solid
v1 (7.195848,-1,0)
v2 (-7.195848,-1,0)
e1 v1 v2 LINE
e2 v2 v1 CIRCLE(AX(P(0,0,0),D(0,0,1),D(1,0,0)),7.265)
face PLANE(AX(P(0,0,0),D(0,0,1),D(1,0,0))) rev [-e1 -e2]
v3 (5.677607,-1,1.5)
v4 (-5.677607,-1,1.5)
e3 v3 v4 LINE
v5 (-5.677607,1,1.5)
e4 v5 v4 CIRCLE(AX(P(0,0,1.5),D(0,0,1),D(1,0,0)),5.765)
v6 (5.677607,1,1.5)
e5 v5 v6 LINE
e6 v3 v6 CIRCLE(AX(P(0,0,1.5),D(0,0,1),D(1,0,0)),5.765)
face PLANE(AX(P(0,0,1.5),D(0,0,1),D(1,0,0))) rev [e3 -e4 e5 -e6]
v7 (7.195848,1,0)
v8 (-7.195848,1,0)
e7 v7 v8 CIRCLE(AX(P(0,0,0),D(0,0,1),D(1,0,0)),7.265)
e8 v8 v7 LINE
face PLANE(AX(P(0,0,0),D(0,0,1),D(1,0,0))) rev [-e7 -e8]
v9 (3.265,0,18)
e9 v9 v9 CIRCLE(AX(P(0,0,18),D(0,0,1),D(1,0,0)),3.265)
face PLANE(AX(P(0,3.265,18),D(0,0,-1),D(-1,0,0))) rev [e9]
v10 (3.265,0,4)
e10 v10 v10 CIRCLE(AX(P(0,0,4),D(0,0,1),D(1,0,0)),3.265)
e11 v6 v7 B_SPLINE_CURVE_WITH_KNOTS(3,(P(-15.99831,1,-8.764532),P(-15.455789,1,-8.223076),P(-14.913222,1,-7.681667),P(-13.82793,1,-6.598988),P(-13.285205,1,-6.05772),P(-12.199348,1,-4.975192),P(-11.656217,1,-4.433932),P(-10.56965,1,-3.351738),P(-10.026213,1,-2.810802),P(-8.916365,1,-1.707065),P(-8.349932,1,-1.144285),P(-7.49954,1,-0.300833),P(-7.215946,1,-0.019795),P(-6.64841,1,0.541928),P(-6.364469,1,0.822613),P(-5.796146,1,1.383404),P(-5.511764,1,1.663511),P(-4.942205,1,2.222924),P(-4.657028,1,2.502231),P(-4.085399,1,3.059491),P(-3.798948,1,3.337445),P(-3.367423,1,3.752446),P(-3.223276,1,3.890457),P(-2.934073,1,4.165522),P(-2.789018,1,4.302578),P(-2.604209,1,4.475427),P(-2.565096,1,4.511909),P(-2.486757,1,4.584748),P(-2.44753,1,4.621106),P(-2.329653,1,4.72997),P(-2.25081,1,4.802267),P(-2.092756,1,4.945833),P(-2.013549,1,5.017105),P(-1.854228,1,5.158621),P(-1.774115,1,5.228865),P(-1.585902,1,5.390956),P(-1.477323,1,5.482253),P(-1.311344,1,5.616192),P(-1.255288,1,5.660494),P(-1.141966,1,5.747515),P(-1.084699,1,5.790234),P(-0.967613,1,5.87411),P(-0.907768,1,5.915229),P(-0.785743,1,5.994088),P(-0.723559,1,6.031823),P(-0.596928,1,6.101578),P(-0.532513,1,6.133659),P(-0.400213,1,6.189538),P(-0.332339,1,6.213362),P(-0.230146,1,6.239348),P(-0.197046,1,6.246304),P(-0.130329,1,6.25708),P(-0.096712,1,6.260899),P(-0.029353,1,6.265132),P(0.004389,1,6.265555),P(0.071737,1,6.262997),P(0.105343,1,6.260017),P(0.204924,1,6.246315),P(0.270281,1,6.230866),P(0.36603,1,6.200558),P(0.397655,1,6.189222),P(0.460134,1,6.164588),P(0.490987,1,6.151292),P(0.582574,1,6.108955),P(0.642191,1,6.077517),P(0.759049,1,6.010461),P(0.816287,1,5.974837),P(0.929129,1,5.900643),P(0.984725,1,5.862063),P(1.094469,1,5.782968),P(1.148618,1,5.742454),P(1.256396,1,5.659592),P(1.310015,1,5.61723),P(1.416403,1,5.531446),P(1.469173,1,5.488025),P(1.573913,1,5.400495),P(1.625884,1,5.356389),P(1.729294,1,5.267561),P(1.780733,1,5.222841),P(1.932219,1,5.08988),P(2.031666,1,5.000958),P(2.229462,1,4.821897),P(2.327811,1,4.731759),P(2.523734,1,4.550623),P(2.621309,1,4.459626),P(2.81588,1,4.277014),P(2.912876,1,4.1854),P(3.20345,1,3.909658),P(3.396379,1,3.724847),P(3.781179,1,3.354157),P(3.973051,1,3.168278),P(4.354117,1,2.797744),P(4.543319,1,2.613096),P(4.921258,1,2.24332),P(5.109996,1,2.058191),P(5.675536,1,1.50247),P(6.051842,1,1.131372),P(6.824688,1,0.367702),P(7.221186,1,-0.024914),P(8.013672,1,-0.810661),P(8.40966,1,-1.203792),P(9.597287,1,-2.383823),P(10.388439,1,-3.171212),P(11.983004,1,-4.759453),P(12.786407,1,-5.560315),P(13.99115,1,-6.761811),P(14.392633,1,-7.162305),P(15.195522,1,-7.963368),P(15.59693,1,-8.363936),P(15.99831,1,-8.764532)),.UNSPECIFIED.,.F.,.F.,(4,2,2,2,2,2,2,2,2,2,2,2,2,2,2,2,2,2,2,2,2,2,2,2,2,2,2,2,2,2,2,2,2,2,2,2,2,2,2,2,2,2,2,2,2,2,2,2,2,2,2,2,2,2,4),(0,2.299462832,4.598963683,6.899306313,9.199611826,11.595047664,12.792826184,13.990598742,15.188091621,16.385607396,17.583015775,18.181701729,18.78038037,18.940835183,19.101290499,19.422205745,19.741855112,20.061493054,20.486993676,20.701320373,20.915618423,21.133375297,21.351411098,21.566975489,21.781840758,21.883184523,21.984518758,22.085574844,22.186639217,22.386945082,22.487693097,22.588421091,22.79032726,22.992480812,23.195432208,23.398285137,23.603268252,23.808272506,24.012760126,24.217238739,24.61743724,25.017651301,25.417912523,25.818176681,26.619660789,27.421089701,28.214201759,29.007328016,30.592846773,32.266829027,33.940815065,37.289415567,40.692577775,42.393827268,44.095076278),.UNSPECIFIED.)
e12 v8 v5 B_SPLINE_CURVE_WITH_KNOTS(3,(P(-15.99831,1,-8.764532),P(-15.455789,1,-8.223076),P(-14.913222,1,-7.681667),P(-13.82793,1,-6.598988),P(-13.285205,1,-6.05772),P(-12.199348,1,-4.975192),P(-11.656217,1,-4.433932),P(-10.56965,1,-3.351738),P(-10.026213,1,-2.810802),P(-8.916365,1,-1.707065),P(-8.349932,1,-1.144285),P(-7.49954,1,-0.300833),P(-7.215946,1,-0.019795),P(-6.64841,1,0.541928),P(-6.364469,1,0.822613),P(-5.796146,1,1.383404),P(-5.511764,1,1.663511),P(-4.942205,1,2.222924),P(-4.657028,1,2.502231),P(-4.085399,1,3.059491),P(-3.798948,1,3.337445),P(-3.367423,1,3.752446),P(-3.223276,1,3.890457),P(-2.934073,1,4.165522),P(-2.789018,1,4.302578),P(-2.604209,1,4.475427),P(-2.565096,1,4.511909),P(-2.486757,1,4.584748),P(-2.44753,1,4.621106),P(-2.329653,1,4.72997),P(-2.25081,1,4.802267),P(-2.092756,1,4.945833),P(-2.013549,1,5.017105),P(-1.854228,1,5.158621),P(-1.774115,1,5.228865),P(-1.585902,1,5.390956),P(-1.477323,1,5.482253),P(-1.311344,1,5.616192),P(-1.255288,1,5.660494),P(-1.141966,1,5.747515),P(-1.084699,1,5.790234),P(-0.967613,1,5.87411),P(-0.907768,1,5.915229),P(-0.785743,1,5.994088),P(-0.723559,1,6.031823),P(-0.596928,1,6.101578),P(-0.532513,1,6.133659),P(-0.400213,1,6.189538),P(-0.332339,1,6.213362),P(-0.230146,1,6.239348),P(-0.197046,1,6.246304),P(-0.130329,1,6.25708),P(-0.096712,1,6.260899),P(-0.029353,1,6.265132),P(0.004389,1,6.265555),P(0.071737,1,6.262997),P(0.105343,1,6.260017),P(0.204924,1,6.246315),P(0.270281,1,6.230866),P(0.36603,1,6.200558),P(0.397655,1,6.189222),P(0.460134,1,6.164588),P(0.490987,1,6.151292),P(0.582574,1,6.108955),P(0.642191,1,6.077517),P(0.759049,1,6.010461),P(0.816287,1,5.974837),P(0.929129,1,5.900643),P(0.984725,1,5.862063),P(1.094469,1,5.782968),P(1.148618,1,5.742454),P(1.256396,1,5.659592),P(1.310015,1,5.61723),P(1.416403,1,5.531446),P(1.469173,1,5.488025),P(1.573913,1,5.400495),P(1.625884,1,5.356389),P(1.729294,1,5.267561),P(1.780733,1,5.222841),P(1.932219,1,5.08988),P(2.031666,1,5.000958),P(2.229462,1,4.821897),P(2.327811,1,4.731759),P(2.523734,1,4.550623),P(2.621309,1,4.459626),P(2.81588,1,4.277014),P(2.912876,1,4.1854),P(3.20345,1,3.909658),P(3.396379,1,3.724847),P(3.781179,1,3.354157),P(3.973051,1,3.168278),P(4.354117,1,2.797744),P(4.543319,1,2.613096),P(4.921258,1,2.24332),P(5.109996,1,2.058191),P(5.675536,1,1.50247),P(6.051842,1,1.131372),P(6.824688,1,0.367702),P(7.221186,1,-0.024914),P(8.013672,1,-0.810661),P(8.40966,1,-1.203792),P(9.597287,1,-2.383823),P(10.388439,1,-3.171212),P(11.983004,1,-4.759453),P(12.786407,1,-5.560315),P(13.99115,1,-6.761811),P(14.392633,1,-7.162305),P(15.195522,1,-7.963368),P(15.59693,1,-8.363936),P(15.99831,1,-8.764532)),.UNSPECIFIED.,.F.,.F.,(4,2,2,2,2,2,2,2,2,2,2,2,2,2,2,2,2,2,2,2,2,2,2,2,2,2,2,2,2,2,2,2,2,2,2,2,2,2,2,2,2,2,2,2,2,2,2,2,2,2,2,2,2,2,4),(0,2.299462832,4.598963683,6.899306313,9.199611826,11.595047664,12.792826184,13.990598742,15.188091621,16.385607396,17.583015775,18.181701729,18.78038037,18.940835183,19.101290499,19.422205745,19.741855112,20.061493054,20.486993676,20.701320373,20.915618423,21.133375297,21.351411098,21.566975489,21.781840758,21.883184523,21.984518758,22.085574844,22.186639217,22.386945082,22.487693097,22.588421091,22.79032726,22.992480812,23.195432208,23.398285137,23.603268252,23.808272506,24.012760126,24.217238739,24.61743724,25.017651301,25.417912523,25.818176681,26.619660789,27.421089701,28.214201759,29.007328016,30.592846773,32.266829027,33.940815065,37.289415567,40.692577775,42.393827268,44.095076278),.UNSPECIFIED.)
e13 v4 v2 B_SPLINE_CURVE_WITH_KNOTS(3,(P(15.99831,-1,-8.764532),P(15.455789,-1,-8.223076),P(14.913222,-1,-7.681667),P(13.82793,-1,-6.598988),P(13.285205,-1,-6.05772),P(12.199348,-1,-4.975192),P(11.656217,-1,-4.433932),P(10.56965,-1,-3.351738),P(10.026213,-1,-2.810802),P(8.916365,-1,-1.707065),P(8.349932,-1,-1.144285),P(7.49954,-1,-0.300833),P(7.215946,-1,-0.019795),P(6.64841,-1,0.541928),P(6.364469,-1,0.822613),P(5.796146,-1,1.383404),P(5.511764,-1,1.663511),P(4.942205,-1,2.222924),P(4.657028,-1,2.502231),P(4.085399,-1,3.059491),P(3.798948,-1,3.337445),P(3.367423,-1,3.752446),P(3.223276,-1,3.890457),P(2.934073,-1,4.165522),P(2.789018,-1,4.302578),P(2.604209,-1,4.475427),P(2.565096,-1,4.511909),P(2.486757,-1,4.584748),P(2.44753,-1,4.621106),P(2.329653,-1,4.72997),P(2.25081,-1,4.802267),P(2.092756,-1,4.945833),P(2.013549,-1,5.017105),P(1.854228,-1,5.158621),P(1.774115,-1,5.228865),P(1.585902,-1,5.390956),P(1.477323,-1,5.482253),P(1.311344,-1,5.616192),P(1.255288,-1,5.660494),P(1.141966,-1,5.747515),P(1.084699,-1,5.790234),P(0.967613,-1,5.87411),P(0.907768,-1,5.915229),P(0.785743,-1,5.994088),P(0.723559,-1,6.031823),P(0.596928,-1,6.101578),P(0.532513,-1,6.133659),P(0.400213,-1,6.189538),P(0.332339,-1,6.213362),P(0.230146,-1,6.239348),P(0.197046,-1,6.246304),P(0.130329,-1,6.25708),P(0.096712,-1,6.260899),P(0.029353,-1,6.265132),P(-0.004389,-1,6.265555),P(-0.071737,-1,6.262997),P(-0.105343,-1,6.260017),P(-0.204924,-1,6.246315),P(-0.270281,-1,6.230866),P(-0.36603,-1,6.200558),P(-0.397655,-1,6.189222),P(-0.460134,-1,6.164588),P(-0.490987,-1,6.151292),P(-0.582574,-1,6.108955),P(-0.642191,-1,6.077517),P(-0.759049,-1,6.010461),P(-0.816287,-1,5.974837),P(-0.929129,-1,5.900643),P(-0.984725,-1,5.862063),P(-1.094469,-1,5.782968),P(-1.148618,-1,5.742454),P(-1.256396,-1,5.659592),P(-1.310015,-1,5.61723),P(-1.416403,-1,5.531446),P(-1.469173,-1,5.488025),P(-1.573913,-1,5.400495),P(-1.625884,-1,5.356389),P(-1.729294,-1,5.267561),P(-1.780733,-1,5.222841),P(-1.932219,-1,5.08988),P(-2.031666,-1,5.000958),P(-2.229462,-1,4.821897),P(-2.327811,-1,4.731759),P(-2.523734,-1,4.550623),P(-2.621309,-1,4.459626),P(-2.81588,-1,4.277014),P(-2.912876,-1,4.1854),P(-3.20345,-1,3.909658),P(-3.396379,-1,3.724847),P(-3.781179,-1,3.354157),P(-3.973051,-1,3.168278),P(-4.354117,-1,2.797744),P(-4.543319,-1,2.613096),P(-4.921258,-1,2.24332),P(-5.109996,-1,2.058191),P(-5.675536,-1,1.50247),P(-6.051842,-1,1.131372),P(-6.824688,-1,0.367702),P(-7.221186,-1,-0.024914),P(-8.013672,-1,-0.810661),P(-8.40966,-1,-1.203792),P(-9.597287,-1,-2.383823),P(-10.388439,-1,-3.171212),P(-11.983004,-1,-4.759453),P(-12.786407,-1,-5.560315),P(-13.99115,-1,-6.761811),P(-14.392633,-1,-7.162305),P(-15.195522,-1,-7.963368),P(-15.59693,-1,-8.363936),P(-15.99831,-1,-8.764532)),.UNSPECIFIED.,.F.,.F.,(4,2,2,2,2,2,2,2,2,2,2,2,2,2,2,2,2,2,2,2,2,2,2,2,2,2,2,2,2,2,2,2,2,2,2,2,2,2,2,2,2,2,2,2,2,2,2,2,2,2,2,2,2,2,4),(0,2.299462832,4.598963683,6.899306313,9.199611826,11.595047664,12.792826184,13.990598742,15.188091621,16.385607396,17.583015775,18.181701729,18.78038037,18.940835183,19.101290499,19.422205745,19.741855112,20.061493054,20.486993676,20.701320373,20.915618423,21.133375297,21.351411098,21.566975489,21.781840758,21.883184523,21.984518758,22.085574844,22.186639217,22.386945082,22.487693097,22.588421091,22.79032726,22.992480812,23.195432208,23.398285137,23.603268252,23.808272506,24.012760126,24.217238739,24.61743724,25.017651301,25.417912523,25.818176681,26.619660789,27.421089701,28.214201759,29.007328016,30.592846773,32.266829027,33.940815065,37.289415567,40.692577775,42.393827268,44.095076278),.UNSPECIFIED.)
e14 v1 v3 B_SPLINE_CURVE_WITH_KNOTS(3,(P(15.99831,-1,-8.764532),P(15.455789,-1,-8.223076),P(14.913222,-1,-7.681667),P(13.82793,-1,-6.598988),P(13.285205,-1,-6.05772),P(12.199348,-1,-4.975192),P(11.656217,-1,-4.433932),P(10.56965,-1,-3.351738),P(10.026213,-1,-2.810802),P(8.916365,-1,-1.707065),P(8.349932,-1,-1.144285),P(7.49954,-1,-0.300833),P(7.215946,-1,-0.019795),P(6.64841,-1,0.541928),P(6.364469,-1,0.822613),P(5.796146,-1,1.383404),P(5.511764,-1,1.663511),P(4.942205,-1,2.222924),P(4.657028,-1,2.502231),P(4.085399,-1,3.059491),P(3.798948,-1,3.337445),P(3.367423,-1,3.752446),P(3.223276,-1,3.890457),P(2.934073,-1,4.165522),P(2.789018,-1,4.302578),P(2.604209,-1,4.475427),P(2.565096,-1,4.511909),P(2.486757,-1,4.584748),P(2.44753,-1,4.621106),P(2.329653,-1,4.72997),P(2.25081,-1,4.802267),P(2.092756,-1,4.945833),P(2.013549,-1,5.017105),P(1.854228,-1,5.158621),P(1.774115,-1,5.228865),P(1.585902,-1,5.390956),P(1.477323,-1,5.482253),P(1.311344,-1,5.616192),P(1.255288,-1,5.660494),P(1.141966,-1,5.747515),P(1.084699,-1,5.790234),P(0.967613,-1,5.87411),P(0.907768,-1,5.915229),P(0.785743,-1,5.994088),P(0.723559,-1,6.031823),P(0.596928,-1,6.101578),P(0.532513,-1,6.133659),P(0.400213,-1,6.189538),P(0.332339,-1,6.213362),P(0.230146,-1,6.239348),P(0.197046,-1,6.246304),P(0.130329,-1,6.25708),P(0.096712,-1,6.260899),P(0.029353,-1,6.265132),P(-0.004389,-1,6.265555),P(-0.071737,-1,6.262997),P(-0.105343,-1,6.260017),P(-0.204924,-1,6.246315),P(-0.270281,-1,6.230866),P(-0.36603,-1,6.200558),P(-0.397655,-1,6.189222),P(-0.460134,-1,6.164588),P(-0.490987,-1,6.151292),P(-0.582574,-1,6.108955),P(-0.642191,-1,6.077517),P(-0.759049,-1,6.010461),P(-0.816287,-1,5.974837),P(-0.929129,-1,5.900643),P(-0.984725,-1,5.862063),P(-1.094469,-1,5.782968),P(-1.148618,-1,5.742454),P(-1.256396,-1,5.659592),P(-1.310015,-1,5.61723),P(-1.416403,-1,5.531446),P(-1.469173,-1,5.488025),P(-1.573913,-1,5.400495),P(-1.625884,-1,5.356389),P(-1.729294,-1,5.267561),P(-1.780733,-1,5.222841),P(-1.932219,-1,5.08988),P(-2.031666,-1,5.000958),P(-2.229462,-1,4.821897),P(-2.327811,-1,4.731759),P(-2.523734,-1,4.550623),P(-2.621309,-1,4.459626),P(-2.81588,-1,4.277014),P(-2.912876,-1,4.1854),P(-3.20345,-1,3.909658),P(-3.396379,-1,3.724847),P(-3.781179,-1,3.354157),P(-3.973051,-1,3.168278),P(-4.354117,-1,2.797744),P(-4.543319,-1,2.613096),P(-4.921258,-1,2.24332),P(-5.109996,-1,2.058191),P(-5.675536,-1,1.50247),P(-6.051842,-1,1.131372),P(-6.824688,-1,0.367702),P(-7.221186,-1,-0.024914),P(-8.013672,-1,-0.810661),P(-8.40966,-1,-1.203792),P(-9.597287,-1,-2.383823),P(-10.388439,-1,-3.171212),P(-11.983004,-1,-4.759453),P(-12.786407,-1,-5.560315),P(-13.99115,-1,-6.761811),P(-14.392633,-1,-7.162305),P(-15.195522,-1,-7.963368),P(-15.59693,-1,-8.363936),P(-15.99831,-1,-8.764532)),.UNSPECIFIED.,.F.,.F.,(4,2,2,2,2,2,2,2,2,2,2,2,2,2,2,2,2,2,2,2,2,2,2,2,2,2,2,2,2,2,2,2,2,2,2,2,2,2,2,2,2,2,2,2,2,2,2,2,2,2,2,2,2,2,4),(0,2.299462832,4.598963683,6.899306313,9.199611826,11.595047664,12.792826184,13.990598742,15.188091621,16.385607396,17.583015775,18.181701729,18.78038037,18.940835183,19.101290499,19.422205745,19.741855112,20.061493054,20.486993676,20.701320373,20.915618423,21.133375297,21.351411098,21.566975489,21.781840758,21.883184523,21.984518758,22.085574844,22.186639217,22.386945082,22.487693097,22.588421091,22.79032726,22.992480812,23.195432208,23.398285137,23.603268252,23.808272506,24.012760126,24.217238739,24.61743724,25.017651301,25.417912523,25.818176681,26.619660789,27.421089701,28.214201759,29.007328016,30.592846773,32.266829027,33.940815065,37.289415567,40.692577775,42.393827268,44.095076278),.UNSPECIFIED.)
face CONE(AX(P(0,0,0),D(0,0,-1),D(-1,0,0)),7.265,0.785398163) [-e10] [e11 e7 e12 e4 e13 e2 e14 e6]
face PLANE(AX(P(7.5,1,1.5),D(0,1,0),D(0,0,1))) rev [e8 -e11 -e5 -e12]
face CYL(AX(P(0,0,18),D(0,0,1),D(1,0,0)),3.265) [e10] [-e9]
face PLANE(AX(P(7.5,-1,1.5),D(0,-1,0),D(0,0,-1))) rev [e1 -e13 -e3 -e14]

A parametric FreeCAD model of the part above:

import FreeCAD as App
import Part
import Sketcher
Q = App.Units.Quantity

doc = App.newDocument("Part")
body = doc.addObject("PartDesign::Body", "Body")

sketch1 = body.newObject("Sketcher::SketchObject", "Sketch")
sketch1.AttachmentSupport = (doc.getObject("YZ_Plane"), [""])
sketch1.MapMode = "FlatFace"
sketch1.addGeometry([
    Part.LineSegment(App.Vector(0, 0, 0), App.Vector(7.265, 0, 0)),
    Part.LineSegment(App.Vector(7.265, 0, 0), App.Vector(3.265, 4, 0)),
    Part.LineSegment(App.Vector(3.265, 4, 0), App.Vector(3.265, 18, 0)),
    Part.LineSegment(App.Vector(3.265, 18, 0), App.Vector(0, 18, 0)),
    Part.LineSegment(App.Vector(0, 18, 0), App.Vector(0, 0, 0)),
], False)
sketch1.addConstraint([
    Sketcher.Constraint("Coincident", 0, 2, 1, 1),
    Sketcher.Constraint("Coincident", 1, 2, 2, 1),
    Sketcher.Constraint("Coincident", 2, 2, 3, 1),
    Sketcher.Constraint("Coincident", 3, 2, 4, 1),
    Sketcher.Constraint("Coincident", 4, 2, 0, 1),
    Sketcher.Constraint("Horizontal", 0),
    Sketcher.Constraint("Vertical", 2),
    Sketcher.Constraint("Horizontal", 3),
    Sketcher.Constraint("Vertical", 4),
    Sketcher.Constraint("Coincident", 4, 2, -1, 1),
    Sketcher.Constraint("DistanceY", 2, 1, 2, 2, 14.0),
    Sketcher.Constraint("DistanceY", 4, 2, 4, 1, 18.0),
    Sketcher.Constraint("Angle", 1, Q("135 deg")),
    Sketcher.Constraint("DistanceX", 0, 1, 0, 2, 7.265),
])
revolution = body.newObject("PartDesign::Revolution", "Revolution")
revolution.Profile = sketch1
revolution.ReferenceAxis = (sketch1, ["V_Axis"])
revolution.Angle = 360

sketch2 = body.newObject("Sketcher::SketchObject", "Sketch001")
sketch2.AttachmentSupport = (doc.getObject("XY_Plane"), [""])
sketch2.MapMode = "FlatFace"
sketch2.addGeometry([
    Part.LineSegment(App.Vector(7.5, 1, 0), App.Vector(7.5, -1, 0)),
    Part.LineSegment(App.Vector(7.5, -1, 0), App.Vector(-7.5, -1, 0)),
    Part.LineSegment(App.Vector(-7.5, -1, 0), App.Vector(-7.5, 1, 0)),
    Part.LineSegment(App.Vector(-7.5, 1, 0), App.Vector(7.5, 1, 0)),
], False)
sketch2.addConstraint([
    Sketcher.Constraint("Coincident", 0, 2, 1, 1),
    Sketcher.Constraint("Coincident", 1, 2, 2, 1),
    Sketcher.Constraint("Coincident", 2, 2, 3, 1),
    Sketcher.Constraint("Coincident", 3, 2, 0, 1),
    Sketcher.Constraint("Vertical", 0),
    Sketcher.Constraint("Horizontal", 1),
    Sketcher.Constraint("Vertical", 2),
    Sketcher.Constraint("Horizontal", 3),
    Sketcher.Constraint("Symmetric", 0, 2, 2, 2, -1, 1),
    Sketcher.Constraint("DistanceX", 1, 2, 1, 1, 15.0),
    Sketcher.Constraint("DistanceY", 0, 2, 0, 1, 2.0),
])
pocket1 = body.newObject("PartDesign::Pocket", "Pocket")
pocket1.Profile = sketch2
pocket1.Length = 1.5
pocket1.Reversed = True

doc.recompute()
